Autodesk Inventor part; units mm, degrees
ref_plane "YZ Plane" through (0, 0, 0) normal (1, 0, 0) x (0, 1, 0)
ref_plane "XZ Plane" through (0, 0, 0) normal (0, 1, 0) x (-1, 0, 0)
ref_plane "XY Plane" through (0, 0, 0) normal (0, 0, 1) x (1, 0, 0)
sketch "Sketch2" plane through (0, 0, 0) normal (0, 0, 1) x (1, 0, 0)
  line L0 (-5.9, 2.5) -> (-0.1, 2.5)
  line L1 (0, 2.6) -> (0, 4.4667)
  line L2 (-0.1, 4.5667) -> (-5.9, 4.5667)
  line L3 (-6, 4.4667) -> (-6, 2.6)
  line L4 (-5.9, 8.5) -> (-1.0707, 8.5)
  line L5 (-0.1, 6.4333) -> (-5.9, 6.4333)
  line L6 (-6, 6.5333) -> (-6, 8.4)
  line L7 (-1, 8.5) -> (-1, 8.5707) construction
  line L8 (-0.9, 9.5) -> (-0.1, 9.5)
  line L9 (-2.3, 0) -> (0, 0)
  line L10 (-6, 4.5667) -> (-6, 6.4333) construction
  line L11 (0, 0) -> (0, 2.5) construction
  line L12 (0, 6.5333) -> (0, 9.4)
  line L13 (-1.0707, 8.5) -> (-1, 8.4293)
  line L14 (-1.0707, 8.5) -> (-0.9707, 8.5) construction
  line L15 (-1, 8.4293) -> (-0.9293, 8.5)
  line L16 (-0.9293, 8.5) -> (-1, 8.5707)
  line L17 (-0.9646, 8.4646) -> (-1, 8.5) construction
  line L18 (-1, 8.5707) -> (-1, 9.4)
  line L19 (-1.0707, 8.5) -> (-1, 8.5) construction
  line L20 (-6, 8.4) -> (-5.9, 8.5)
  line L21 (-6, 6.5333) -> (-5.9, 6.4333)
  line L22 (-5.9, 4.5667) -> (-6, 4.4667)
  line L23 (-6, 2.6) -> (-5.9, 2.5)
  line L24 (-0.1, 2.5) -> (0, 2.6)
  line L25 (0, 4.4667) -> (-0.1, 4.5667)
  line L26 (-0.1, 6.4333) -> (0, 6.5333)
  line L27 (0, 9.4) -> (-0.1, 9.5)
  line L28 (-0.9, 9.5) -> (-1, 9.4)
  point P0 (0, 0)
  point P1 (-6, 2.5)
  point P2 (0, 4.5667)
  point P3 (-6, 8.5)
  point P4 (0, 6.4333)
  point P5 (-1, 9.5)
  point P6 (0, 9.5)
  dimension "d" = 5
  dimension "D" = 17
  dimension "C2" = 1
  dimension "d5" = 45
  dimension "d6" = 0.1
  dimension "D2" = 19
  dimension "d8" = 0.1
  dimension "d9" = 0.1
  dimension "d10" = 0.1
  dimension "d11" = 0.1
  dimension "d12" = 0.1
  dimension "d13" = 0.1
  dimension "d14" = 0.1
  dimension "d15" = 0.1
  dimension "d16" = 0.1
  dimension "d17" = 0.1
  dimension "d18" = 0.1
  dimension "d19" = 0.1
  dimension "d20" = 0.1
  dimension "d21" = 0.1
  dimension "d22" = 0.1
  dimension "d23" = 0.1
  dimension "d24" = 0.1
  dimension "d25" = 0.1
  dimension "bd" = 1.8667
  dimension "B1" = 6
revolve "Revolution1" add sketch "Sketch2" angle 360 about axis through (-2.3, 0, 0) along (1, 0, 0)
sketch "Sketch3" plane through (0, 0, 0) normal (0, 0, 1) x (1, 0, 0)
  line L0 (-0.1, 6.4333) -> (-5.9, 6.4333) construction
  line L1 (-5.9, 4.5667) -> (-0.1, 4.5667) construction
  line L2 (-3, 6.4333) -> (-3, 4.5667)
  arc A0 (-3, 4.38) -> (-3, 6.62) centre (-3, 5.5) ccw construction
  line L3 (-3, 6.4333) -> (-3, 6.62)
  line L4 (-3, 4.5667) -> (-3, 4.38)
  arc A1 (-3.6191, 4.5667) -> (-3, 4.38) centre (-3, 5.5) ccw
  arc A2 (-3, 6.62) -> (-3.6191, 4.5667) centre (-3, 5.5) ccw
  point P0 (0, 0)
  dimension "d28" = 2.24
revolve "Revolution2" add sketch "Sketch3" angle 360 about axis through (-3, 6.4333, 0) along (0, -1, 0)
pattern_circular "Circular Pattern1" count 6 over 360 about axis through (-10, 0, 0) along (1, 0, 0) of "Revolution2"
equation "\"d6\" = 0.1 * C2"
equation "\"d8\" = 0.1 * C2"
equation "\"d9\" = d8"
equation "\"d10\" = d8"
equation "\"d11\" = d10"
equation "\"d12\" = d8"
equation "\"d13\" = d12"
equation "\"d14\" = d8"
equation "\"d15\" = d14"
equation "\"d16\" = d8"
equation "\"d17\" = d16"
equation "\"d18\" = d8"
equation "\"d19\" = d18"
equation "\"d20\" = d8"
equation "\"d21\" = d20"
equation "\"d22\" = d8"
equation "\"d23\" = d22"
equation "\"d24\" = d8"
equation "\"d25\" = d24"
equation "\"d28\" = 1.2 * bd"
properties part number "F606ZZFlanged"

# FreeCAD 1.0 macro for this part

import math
import FreeCAD as App
import Part
import Sketcher
from FreeCAD import Vector
Q = App.Units.Quantity

doc = App.newDocument("Part")
body = doc.addObject("PartDesign::Body", "Body")
body.AllowCompound = True

# Sketch on XY plane
sketch1 = doc.addObject("Sketcher::SketchObject", "Sketch")
body.addObject(sketch1)
sketch1.AttachmentSupport = (doc.XY_Plane, [""])
sketch1.MapMode = "FlatFace"
sketch1.addGeometry(Part.LineSegment(Vector(-6, 2.6, 0), Vector(-5.9, 2.5, 0)), False)
sketch1.addGeometry(Part.LineSegment(Vector(-5.9, 2.5, 0), Vector(-0.1, 2.5, 0)), False)
sketch1.addGeometry(Part.LineSegment(Vector(-0.1, 2.5, 0), Vector(0, 2.6, 0)), False)
sketch1.addGeometry(Part.LineSegment(Vector(0, 2.6, 0), Vector(0, 4.47, 0)), False)
sketch1.addGeometry(Part.LineSegment(Vector(0, 4.47, 0), Vector(-0.1, 4.57, 0)), False)
sketch1.addGeometry(Part.LineSegment(Vector(-0.1, 4.57, 0), Vector(-5.9, 4.57, 0)), False)
sketch1.addGeometry(Part.LineSegment(Vector(-5.9, 4.57, 0), Vector(-6, 4.47, 0)), False)
sketch1.addGeometry(Part.LineSegment(Vector(-6, 4.47, 0), Vector(-6, 2.6, 0)), False)
sketch1.addGeometry(Part.LineSegment(Vector(-1.07, 8.5, 0), Vector(-5.9, 8.5, 0)), False)
sketch1.addGeometry(Part.LineSegment(Vector(-5.9, 8.5, 0), Vector(-6, 8.4, 0)), False)
sketch1.addGeometry(Part.LineSegment(Vector(-6, 8.4, 0), Vector(-6, 6.53, 0)), False)
sketch1.addGeometry(Part.LineSegment(Vector(-6, 6.53, 0), Vector(-5.9, 6.43, 0)), False)
sketch1.addGeometry(Part.LineSegment(Vector(-5.9, 6.43, 0), Vector(-0.1, 6.43, 0)), False)
sketch1.addGeometry(Part.LineSegment(Vector(-0.1, 6.43, 0), Vector(0, 6.53, 0)), False)
sketch1.addGeometry(Part.LineSegment(Vector(0, 6.53, 0), Vector(0, 9.4, 0)), False)
sketch1.addGeometry(Part.LineSegment(Vector(0, 9.4, 0), Vector(-0.1, 9.5, 0)), False)
sketch1.addGeometry(Part.LineSegment(Vector(-0.1, 9.5, 0), Vector(-0.9, 9.5, 0)), False)
sketch1.addGeometry(Part.LineSegment(Vector(-0.9, 9.5, 0), Vector(-1, 9.4, 0)), False)
sketch1.addGeometry(Part.LineSegment(Vector(-1, 9.4, 0), Vector(-1, 8.57, 0)), False)
sketch1.addGeometry(Part.LineSegment(Vector(-1, 8.57, 0), Vector(-0.93, 8.5, 0)), False)
sketch1.addGeometry(Part.LineSegment(Vector(-0.93, 8.5, 0), Vector(-1, 8.43, 0)), False)
sketch1.addGeometry(Part.LineSegment(Vector(-1, 8.43, 0), Vector(-1.07, 8.5, 0)), False)
sketch1.addConstraint(Sketcher.Constraint("Coincident", 0, 2, 1, 1))
sketch1.addConstraint(Sketcher.Constraint("Coincident", 1, 2, 2, 1))
sketch1.addConstraint(Sketcher.Constraint("Coincident", 2, 2, 3, 1))
sketch1.addConstraint(Sketcher.Constraint("Coincident", 3, 2, 4, 1))
sketch1.addConstraint(Sketcher.Constraint("Coincident", 4, 2, 5, 1))
sketch1.addConstraint(Sketcher.Constraint("Coincident", 5, 2, 6, 1))
sketch1.addConstraint(Sketcher.Constraint("Coincident", 6, 2, 7, 1))
sketch1.addConstraint(Sketcher.Constraint("Coincident", 7, 2, 0, 1))
sketch1.addConstraint(Sketcher.Constraint("Coincident", 8, 2, 9, 1))
sketch1.addConstraint(Sketcher.Constraint("Coincident", 9, 2, 10, 1))
sketch1.addConstraint(Sketcher.Constraint("Coincident", 10, 2, 11, 1))
sketch1.addConstraint(Sketcher.Constraint("Coincident", 11, 2, 12, 1))
sketch1.addConstraint(Sketcher.Constraint("Coincident", 12, 2, 13, 1))
sketch1.addConstraint(Sketcher.Constraint("Coincident", 13, 2, 14, 1))
sketch1.addConstraint(Sketcher.Constraint("Coincident", 14, 2, 15, 1))
sketch1.addConstraint(Sketcher.Constraint("Coincident", 15, 2, 16, 1))
sketch1.addConstraint(Sketcher.Constraint("Coincident", 16, 2, 17, 1))
sketch1.addConstraint(Sketcher.Constraint("Coincident", 17, 2, 18, 1))
sketch1.addConstraint(Sketcher.Constraint("Coincident", 18, 2, 19, 1))
sketch1.addConstraint(Sketcher.Constraint("Coincident", 19, 2, 20, 1))
sketch1.addConstraint(Sketcher.Constraint("Coincident", 20, 2, 21, 1))
sketch1.addConstraint(Sketcher.Constraint("Coincident", 21, 2, 8, 1))
sketch1.addConstraint(Sketcher.Constraint("Horizontal", 1))
sketch1.addConstraint(Sketcher.Constraint("Vertical", 3))
sketch1.addConstraint(Sketcher.Constraint("Horizontal", 5))
sketch1.addConstraint(Sketcher.Constraint("Vertical", 7))
sketch1.addConstraint(Sketcher.Constraint("Horizontal", 8))
sketch1.addConstraint(Sketcher.Constraint("Vertical", 10))
sketch1.addConstraint(Sketcher.Constraint("Horizontal", 12))
sketch1.addConstraint(Sketcher.Constraint("Vertical", 14))
sketch1.addConstraint(Sketcher.Constraint("Horizontal", 16))
sketch1.addConstraint(Sketcher.Constraint("Vertical", 18))
sketch1.addConstraint(Sketcher.Constraint("PointOnObject", 2, 2, -2))
sketch1.addConstraint(Sketcher.Constraint("PointOnObject", 13, 2, -2))
sketch1.addConstraint(Sketcher.Constraint("Perpendicular", 0, 2))
sketch1.addConstraint(Sketcher.Constraint("Perpendicular", 2, 4))
sketch1.addConstraint(Sketcher.Constraint("Perpendicular", 4, 6))
sketch1.addConstraint(Sketcher.Constraint("Parallel", 6, 9))
sketch1.addConstraint(Sketcher.Constraint("Perpendicular", 9, 11))
sketch1.addConstraint(Sketcher.Constraint("Perpendicular", 11, 13))
sketch1.addConstraint(Sketcher.Constraint("Perpendicular", 13, 15))
sketch1.addConstraint(Sketcher.Constraint("Perpendicular", 15, 17))
sketch1.addConstraint(Sketcher.Constraint("Perpendicular", 17, 19))
sketch1.addConstraint(Sketcher.Constraint("Perpendicular", 19, 20))
sketch1.addConstraint(Sketcher.Constraint("Perpendicular", 20, 21))
sketch1.addConstraint(Sketcher.Constraint("Horizontal", 3, 2, 6, 2))
sketch1.addConstraint(Sketcher.Constraint("Horizontal", 2, 2, 7, 2))
sketch1.addConstraint(Sketcher.Constraint("Horizontal", 10, 2, 13, 2))
sketch1.addConstraint(Sketcher.Constraint("Horizontal", 14, 2, 17, 2))
sketch1.addConstraint(Sketcher.Constraint("Horizontal", 8, 2, 19, 2))
sketch1.addConstraint(Sketcher.Constraint("Vertical", 1, 2, 4, 2))
sketch1.addConstraint(Sketcher.Constraint("Vertical", 0, 2, 5, 2))
sketch1.addConstraint(Sketcher.Constraint("Vertical", 5, 2, 8, 2))
sketch1.addConstraint(Sketcher.Constraint("Vertical", 7, 2, 9, 2))
sketch1.addConstraint(Sketcher.Constraint("Vertical", 8, 2, 11, 2))
sketch1.addConstraint(Sketcher.Constraint("Vertical", 12, 2, 15, 2))
sketch1.addConstraint(Sketcher.Constraint("Vertical", 18, 2, 20, 2))
sketch1.addConstraint(Sketcher.Constraint("Equal", 7, 10))
sketch1.addConstraint(Sketcher.Constraint("DistanceX", 6, 2, -1, 1, Q("6 mm")))
sketch1.addConstraint(Sketcher.Constraint("DistanceX", 17, 2, -1, 1, Q("1 mm")))
sketch1.addConstraint(Sketcher.Constraint("DistanceY", 0, 2, 8, 2, Q("6 mm")))
sketch1.addConstraint(Sketcher.Constraint("DistanceY", 19, 2, 16, 2, Q("1 mm")))
sketch1.addConstraint(Sketcher.Constraint("Distance", 19, Q("0.1 mm")))
sketch1.addConstraint(Sketcher.Constraint("DistanceX", 1, 2, -1, 1, Q("0.1 mm")))
sketch1.addConstraint(Sketcher.Constraint("DistanceY", 3, 1, 3, 2, Q("1.8667 mm")))
sketch1.addConstraint(Sketcher.Constraint("DistanceY", -1, 1, 0, 2, Q("2.5 mm")))
revolution = doc.addObject("PartDesign::Revolution", "Revolution")
body.addObject(revolution)
revolution.Profile = sketch1
revolution.ReferenceAxis = (sketch1, ["H_Axis"])
revolution.Angle = 360

# Sketch on XY plane
sketch2 = doc.addObject("Sketcher::SketchObject", "Sketch001")
body.addObject(sketch2)
sketch2.AttachmentSupport = (doc.XY_Plane, [""])
sketch2.MapMode = "FlatFace"
sketch2.addGeometry(Part.LineSegment(Vector(-3, 4.4, 0), Vector(-3, 6.6, 0)), False)
sketch2.addGeometry(Part.ArcOfCircle(Part.Circle(Vector(-3, 5.5, 0), Vector(0, 0, 1), 1.1), math.radians(90), math.radians(236)), False)
sketch2.addGeometry(Part.ArcOfCircle(Part.Circle(Vector(-3, 5.5, 0), Vector(0, 0, 1), 1.1), math.radians(-124), math.radians(-90)), False)
sketch2.addGeometry(Part.LineSegment(Vector(-3, 6.6, 0), Vector(-3, 4.4, 0)), True)  # axis
sketch2.addConstraint(Sketcher.Constraint("Coincident", 0, 2, 1, 1))
sketch2.addConstraint(Sketcher.Constraint("Tangent", 1, 2, 2, 1))
sketch2.addConstraint(Sketcher.Constraint("Coincident", 2, 2, 0, 1))
sketch2.addConstraint(Sketcher.Constraint("Vertical", 0))
sketch2.addConstraint(Sketcher.Constraint("Vertical", 3))
sketch2.addConstraint(Sketcher.Constraint("Coincident", 3, 1, 0, 2))
sketch2.addConstraint(Sketcher.Constraint("Equal", 1, 2))
sketch2.addConstraint(Sketcher.Constraint("Vertical", 2, 3, 0, 2))
sketch2.addConstraint(Sketcher.Constraint("Equal", 0, 3))
sketch2.addConstraint(Sketcher.Constraint("Radius", 1, Q("1.12 mm")))
sketch2.addConstraint(Sketcher.Constraint("DistanceX", 1, 3, -1, 1, Q("3 mm")))
sketch2.addConstraint(Sketcher.Constraint("DistanceY", -1, 1, 1, 3, Q("5.5 mm")))
sketch2.addConstraint(Sketcher.Constraint("DistanceX", 1, 2, -1, 1, Q("3.619 mm")))
revolution2 = doc.addObject("PartDesign::Revolution", "Revolution001")
body.addObject(revolution2)
revolution2.Profile = sketch2
revolution2.ReferenceAxis = (sketch2, ["Axis0"])
revolution2.Angle = 360
doc.recompute()

polarpattern = doc.addObject("PartDesign::PolarPattern", "PolarPattern")
body.addObject(polarpattern)
polarpattern.Originals = [revolution2]
polarpattern.Axis = (doc.X_Axis, [""])
polarpattern.Angle = 360
polarpattern.Occurrences = 6
body.Tip = polarpattern

doc.recompute()
